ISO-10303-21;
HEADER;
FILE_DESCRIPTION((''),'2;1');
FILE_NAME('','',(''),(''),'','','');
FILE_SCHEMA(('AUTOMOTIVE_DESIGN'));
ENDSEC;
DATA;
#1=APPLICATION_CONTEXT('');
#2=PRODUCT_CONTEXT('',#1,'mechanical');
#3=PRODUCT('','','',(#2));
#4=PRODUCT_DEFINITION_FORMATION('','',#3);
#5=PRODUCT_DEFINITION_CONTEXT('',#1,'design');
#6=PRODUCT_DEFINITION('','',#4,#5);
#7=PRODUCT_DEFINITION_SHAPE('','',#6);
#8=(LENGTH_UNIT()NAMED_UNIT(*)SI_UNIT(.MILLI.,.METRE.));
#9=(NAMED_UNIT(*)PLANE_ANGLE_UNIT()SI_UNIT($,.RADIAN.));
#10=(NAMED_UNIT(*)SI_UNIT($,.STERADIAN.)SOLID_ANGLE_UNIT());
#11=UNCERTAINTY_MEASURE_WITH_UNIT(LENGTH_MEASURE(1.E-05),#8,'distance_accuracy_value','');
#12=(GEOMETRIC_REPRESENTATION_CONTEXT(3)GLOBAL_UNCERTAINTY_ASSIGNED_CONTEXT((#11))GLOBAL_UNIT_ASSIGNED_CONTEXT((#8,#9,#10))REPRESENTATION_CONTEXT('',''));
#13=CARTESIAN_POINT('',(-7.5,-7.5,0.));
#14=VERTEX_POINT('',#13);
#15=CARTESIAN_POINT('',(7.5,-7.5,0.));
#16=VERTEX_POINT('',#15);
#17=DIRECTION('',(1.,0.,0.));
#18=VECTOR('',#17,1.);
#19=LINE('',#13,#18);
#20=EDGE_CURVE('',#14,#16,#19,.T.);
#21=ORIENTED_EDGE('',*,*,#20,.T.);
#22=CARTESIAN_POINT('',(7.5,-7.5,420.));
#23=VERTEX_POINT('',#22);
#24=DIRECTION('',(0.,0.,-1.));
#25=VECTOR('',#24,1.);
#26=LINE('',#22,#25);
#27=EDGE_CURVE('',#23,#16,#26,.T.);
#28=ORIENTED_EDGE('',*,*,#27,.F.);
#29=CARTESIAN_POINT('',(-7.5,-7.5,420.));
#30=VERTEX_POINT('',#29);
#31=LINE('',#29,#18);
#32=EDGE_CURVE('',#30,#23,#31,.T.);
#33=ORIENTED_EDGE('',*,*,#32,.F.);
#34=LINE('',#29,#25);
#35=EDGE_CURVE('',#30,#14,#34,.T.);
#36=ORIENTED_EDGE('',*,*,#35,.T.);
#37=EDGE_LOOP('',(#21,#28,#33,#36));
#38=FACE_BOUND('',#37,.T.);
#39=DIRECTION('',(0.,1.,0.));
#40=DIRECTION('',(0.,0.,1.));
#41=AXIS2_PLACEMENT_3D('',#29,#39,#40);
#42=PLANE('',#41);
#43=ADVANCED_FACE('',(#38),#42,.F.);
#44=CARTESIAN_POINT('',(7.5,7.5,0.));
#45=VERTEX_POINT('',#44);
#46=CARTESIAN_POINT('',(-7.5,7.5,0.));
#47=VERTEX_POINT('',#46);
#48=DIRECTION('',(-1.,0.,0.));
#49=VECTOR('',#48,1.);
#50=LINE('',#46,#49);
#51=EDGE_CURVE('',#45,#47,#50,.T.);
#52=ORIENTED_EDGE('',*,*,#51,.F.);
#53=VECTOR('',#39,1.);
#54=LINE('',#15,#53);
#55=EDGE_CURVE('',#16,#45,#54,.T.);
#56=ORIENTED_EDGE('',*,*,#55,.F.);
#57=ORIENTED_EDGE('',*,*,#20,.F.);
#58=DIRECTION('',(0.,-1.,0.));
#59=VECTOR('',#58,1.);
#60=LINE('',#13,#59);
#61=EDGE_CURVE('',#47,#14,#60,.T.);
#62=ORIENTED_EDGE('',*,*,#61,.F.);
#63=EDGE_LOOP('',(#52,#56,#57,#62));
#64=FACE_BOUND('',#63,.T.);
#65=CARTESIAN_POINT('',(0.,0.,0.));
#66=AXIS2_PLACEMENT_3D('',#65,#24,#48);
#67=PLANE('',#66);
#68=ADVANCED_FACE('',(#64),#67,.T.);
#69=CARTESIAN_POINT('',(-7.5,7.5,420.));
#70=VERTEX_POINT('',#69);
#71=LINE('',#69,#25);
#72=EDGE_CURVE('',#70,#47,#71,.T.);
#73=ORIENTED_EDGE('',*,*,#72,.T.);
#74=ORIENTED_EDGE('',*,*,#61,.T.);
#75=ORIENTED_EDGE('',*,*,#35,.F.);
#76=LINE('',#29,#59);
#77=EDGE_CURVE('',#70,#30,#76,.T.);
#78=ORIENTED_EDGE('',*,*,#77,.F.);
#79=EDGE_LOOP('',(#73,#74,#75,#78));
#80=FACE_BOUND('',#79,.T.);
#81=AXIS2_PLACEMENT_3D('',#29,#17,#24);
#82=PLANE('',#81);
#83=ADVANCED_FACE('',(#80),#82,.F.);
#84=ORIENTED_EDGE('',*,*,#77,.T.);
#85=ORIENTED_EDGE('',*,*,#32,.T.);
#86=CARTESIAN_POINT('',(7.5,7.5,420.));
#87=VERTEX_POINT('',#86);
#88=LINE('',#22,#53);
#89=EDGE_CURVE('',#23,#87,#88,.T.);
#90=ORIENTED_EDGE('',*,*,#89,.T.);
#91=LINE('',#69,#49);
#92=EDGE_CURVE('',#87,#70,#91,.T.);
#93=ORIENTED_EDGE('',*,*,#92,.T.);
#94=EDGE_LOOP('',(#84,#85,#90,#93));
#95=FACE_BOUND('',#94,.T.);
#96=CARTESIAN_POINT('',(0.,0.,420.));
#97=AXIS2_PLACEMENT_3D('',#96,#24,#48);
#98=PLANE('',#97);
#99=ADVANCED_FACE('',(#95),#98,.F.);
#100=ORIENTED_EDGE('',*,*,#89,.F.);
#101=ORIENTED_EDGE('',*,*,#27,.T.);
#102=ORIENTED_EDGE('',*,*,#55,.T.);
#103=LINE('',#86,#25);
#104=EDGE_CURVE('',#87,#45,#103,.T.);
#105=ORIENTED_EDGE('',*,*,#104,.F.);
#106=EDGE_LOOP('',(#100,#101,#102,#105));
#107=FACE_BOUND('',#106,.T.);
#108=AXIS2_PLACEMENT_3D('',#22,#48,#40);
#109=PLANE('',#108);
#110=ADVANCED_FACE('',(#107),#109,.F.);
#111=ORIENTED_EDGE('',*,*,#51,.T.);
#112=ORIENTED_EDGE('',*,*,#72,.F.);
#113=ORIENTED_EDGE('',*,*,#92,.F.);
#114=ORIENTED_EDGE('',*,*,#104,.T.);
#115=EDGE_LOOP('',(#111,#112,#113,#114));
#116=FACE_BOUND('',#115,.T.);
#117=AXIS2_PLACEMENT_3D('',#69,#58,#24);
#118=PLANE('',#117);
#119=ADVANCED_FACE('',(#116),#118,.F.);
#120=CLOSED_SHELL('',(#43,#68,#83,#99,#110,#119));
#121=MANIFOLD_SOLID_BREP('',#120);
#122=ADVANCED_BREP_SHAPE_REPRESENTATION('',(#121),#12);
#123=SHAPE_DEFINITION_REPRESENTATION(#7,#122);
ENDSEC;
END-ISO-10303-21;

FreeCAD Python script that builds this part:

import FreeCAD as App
import Part
import Sketcher


def add_polygon(sketch, points):
    """Adds a closed chain of lines whose ends are joined by coincident constraints."""
    first, n = sketch.GeometryCount, len(points)
    for a, b in zip(points, points[1:] + points[:1]):
        sketch.addGeometry(Part.LineSegment(App.Vector(*a, 0), App.Vector(*b, 0)), False)
    for i in range(n):
        sketch.addConstraint(Sketcher.Constraint("Coincident", first + i, 2, first + (i + 1) % n, 1))

doc = App.newDocument("Part")
params = doc.addObject("Spreadsheet::Sheet", "Params")
for row, (alias, value) in enumerate([
    ("sketch1_width", "15 mm"),
    ("pad1_length", "420 mm"),
], start=1):
    params.set(f"A{row}", alias)
    params.set(f"B{row}", "=" + value)
    params.setAlias(f"B{row}", alias)

body = doc.addObject("PartDesign::Body", "Body")

sketch1 = body.newObject("Sketcher::SketchObject", "Sketch")
sketch1.AttachmentSupport = (doc.getObject("XY_Plane"), [""])
sketch1.MapMode = "FlatFace"
add_polygon(sketch1, [(-7.5, 7.5), (-7.5, -7.5), (7.5, -7.5), (7.5, 7.5)])
sketch1.addConstraint([
    Sketcher.Constraint("Vertical", 0),
    Sketcher.Constraint("Horizontal", 1),
    Sketcher.Constraint("Vertical", 2),
    Sketcher.Constraint("Horizontal", 3),
    Sketcher.Constraint("Symmetric", 0, 2, 2, 2, -1, 1),
    Sketcher.Constraint("Equal", 3, 0),
    Sketcher.Constraint("DistanceX", 1, 1, 1, 2, 15.0),
])
sketch1.setExpression("Constraints[10]", "Params.sketch1_width")
pad1 = body.newObject("PartDesign::Pad", "Pad")
pad1.Profile = sketch1
pad1.setExpression("Length", "Params.pad1_length")

doc.recompute()
